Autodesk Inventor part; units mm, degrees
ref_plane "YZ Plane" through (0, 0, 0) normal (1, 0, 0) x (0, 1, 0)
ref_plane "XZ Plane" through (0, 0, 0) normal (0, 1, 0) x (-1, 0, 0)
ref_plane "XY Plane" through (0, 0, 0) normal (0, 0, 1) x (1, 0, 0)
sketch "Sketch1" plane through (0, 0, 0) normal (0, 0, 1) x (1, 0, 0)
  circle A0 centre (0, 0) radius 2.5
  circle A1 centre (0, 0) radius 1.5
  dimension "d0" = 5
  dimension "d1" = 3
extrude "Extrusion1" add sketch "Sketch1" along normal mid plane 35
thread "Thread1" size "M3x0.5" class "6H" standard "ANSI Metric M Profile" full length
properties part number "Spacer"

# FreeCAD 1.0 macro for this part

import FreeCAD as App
import Part
import Sketcher
from FreeCAD import Vector
Q = App.Units.Quantity

doc = App.newDocument("Part")
body = doc.addObject("PartDesign::Body", "Body")

# Sketch on XY plane
sketch1 = body.newObject("Sketcher::SketchObject", "Sketch")
sketch1.AttachmentSupport = (doc.getObject("XY_Plane"), [""])
sketch1.MapMode = "FlatFace"
sketch1.addGeometry([
    Part.Circle(Vector(0, 0, 0), Vector(0, 0, 1), 2.5),
    Part.Circle(Vector(0, 0, 0), Vector(0, 0, 1), 1.5),
], False)
sketch1.addConstraint([
    Sketcher.Constraint("Coincident", 0, 3, -1, 1),
    Sketcher.Constraint("Coincident", 1, 3, -1, 1),
    Sketcher.Constraint("Diameter", 0, Q("5 mm")),
    Sketcher.Constraint("Diameter", 1, Q("3 mm")),
])
pad1 = body.newObject("PartDesign::Pad", "Pad")
pad1.Profile = sketch1
pad1.Length = 35
pad1.Midplane = True

doc.recompute()
